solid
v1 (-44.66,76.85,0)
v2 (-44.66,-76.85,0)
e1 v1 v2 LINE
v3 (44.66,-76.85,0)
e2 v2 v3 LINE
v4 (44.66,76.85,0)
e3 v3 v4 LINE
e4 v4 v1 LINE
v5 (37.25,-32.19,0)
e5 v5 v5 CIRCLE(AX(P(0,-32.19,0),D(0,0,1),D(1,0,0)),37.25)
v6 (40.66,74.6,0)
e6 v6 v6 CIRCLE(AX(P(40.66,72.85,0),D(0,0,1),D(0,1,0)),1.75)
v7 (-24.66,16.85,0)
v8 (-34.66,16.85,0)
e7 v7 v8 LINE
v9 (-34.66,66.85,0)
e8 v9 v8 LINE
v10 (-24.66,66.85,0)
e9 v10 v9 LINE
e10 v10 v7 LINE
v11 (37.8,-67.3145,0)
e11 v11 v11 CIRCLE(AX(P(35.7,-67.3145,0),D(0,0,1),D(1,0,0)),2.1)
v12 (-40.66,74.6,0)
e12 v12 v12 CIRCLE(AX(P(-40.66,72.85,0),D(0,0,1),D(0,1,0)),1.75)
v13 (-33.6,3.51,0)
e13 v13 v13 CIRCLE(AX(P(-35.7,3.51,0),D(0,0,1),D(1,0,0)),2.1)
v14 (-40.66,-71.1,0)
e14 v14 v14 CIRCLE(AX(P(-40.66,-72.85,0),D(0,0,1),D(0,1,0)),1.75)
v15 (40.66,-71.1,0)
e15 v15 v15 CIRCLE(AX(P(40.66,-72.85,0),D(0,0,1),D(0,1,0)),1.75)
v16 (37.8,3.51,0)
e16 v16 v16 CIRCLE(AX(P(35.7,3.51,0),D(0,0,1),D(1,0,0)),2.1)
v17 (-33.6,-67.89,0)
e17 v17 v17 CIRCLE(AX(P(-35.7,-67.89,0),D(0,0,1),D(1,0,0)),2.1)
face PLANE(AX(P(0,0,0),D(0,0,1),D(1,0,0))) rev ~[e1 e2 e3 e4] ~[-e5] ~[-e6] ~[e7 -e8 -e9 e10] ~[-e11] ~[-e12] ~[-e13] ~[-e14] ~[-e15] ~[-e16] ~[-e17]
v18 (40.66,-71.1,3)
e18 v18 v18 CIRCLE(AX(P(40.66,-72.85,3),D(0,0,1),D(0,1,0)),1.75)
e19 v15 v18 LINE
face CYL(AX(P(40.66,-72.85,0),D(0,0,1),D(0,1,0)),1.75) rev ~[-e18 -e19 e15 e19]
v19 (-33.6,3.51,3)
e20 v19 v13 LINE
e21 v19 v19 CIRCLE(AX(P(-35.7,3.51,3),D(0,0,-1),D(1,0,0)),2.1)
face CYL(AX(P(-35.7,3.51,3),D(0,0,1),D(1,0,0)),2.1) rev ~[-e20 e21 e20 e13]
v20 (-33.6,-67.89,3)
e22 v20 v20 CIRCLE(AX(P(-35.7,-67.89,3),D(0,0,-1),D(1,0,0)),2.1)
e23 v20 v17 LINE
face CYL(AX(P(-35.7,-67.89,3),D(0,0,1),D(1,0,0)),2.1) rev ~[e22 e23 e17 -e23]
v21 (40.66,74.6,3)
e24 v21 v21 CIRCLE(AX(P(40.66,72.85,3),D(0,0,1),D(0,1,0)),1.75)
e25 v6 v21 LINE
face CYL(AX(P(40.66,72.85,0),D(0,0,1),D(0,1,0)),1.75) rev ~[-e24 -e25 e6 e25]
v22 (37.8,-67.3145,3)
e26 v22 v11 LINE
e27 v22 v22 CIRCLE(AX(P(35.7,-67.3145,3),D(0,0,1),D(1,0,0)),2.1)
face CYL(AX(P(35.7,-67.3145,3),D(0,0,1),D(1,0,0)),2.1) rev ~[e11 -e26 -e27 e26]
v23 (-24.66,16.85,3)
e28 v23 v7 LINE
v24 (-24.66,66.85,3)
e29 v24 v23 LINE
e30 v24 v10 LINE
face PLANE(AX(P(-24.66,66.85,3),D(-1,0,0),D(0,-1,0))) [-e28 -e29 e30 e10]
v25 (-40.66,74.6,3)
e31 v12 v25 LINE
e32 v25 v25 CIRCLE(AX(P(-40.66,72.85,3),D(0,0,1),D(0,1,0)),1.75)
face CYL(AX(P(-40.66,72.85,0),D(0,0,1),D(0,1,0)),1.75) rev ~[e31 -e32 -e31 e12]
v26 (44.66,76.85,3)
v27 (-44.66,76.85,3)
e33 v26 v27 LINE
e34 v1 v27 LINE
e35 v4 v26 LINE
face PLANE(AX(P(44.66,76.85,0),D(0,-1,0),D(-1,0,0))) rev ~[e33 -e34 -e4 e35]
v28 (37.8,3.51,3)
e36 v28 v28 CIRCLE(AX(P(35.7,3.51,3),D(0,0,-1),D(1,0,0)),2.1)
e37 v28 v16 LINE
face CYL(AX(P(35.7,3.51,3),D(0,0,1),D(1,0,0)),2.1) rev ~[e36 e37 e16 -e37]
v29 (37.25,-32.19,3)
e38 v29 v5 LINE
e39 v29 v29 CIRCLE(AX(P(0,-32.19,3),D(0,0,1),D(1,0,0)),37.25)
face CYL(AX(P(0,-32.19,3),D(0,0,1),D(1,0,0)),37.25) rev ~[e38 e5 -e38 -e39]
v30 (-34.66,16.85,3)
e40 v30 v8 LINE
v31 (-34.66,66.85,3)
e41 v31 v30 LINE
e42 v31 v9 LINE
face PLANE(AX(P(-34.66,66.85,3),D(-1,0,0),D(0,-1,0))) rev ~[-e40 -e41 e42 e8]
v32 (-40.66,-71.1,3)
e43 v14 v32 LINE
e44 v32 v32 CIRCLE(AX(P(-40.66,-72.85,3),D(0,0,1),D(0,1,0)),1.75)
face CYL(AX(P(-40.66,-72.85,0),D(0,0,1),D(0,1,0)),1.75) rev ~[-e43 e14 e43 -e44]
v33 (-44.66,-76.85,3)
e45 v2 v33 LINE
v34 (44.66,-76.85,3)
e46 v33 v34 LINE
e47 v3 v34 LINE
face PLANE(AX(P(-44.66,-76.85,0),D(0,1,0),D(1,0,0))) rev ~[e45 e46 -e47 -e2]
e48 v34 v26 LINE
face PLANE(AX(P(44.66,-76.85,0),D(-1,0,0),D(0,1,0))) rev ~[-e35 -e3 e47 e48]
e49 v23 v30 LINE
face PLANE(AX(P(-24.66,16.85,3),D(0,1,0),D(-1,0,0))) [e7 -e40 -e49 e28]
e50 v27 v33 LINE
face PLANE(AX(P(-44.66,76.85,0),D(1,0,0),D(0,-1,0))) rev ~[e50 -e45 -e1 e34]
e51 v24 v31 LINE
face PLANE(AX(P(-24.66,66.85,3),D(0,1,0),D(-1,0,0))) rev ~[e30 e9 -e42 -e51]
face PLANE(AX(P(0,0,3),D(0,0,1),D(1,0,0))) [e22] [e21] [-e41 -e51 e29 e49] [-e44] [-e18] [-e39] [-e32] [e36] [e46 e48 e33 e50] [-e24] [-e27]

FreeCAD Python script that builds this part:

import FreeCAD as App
import Part
import Sketcher
from FreeCAD import Vector

doc = App.newDocument("Part")
params = doc.addObject("Spreadsheet::Sheet", "Params")
for row, (alias, value) in enumerate([
    ("sketch1_height", "153.7 mm"),
    ("sketch1_width", "89.32 mm"),
    ("pad1_length", "3 mm"),
    ("sketch2_diameter", "4.2 mm"),
    ("sketch2_diameter2", "74.5 mm"),
    ("pocket1_length", "3 mm"),
    ("sketch3_width", "10 mm"),
    ("sketch3_height", "50 mm"),
    ("pocket2_length", "10 mm"),
    ("sketch4_diameter", "3.5 mm"),
    ("hole_diameter", "3.5 mm"),
    ("hole_depth", "7 mm"),
], start=1):
    params.set(f"A{row}", alias)
    params.set(f"B{row}", "=" + value)
    params.setAlias(f"B{row}", alias)

body = doc.addObject("PartDesign::Body", "Body")

# Sketch on XY plane
sketch1 = doc.addObject("Sketcher::SketchObject", "Sketch")
body.addObject(sketch1)
sketch1.AttachmentSupport = (doc.XY_Plane, [""])
sketch1.MapMode = "FlatFace"
sketch1.addGeometry([
    Part.LineSegment(Vector(44.66, 76.85, 0), Vector(-44.66, 76.85, 0)),
    Part.LineSegment(Vector(-44.66, 76.85, 0), Vector(-44.66, -76.85, 0)),
    Part.LineSegment(Vector(-44.66, -76.85, 0), Vector(44.66, -76.85, 0)),
    Part.LineSegment(Vector(44.66, -76.85, 0), Vector(44.66, 76.85, 0)),
], False)
sketch1.addConstraint([
    Sketcher.Constraint("Coincident", 0, 2, 1, 1),
    Sketcher.Constraint("Coincident", 1, 2, 2, 1),
    Sketcher.Constraint("Coincident", 2, 2, 3, 1),
    Sketcher.Constraint("Coincident", 3, 2, 0, 1),
    Sketcher.Constraint("Horizontal", 0),
    Sketcher.Constraint("Vertical", 1),
    Sketcher.Constraint("Horizontal", 2),
    Sketcher.Constraint("Vertical", 3),
    Sketcher.Constraint("Symmetric", 0, 2, 2, 2, -1, 1),
    Sketcher.Constraint("DistanceY", 1, 2, 1, 1, 153.7),
    Sketcher.Constraint("DistanceX", 0, 2, 0, 1, 89.32),
])
sketch1.setExpression("Constraints[9]", "Params.sketch1_height")
sketch1.setExpression("Constraints[10]", "Params.sketch1_width")
pad1 = doc.addObject("PartDesign::Pad", "Pad")
body.addObject(pad1)
pad1.Profile = sketch1
pad1.setExpression("Length", "Params.pad1_length")

# Sketch on XY plane
sketch2 = doc.addObject("Sketcher::SketchObject", "Sketch001")
body.addObject(sketch2)
sketch2.AttachmentSupport = (doc.XY_Plane, [""])
sketch2.MapMode = "FlatFace"
sketch2.AttachmentOffset = App.Placement(Vector(0, 0, 3), App.Rotation())
sketch2.addGeometry([
    Part.Circle(Vector(35.7, -67.3145, 0), Vector(0, 0, 1), 2.1),  # 0
    Part.Circle(Vector(-35.7, -67.89, 0), Vector(0, 0, 1), 2.1),  # 1
    Part.Circle(Vector(-35.7, 3.51, 0), Vector(0, 0, 1), 2.1),  # 2
    Part.Circle(Vector(35.7, 3.51, 0), Vector(0, 0, 1), 2.1),  # 3
    Part.Circle(Vector(0, -32.19, 0), Vector(0, 0, 1), 37.25),  # 4
], False)
sketch2.addConstraint([
    Sketcher.Constraint("Equal", 0, 1),
    Sketcher.Constraint("Equal", 1, 2),
    Sketcher.Constraint("Equal", 2, 3),
    Sketcher.Constraint("Symmetric", 2, 3, 3, 3, -2),
    Sketcher.Constraint("PointOnObject", 4, 3, -2),
    Sketcher.Constraint("Vertical", 1, 3, 2, 3),
    Sketcher.Constraint("Vertical", 0, 3, 3, 3),
    Sketcher.Constraint("Diameter", 0, 4.2),
    Sketcher.Constraint("Diameter", 4, 74.5),
    Sketcher.Constraint("DistanceX", -1, 1, 0, 3, 35.7),
    Sketcher.Constraint("DistanceY", 1, 3, 2, 3, 71.4),
    Sketcher.Constraint("DistanceY", 4, 3, 2, 3, 35.7),
    Sketcher.Constraint("DistanceY", 1, 3, -1, 1, 67.89),
    Sketcher.Constraint("DistanceY", 0, 3, -1, 1, 67.3145),
])
sketch2.setExpression("Constraints[7]", "Params.sketch2_diameter")
sketch2.setExpression("Constraints[8]", "Params.sketch2_diameter2")
pocket1 = doc.addObject("PartDesign::Pocket", "Pocket")
body.addObject(pocket1)
pocket1.Profile = sketch2
pocket1.setExpression("Length", "Params.pocket1_length")

# Sketch on XY plane
sketch3 = doc.addObject("Sketcher::SketchObject", "Sketch002")
body.addObject(sketch3)
sketch3.AttachmentSupport = (doc.XY_Plane, [""])
sketch3.MapMode = "FlatFace"
sketch3.AttachmentOffset = App.Placement(Vector(0, 0, 3), App.Rotation())
sketch3.addGeometry([
    Part.LineSegment(Vector(-24.66, 16.85, 0), Vector(-24.66, 66.85, 0)),
    Part.LineSegment(Vector(-24.66, 66.85, 0), Vector(-34.66, 66.85, 0)),
    Part.LineSegment(Vector(-34.66, 66.85, 0), Vector(-34.66, 16.85, 0)),
    Part.LineSegment(Vector(-34.66, 16.85, 0), Vector(-24.66, 16.85, 0)),
], False)
sketch3.addConstraint([
    Sketcher.Constraint("Coincident", 0, 2, 1, 1),
    Sketcher.Constraint("Coincident", 1, 2, 2, 1),
    Sketcher.Constraint("Coincident", 2, 2, 3, 1),
    Sketcher.Constraint("Coincident", 3, 2, 0, 1),
    Sketcher.Constraint("Vertical", 0),
    Sketcher.Constraint("Horizontal", 1),
    Sketcher.Constraint("Vertical", 2),
    Sketcher.Constraint("Horizontal", 3),
    Sketcher.Constraint("DistanceX", 1, 2, 1, 1, 10.0),
    Sketcher.Constraint("DistanceY", 0, 1, 0, 2, 50.0),
    Sketcher.Constraint("DistanceX", 0, 2, -1, 1, 24.66),
    Sketcher.Constraint("DistanceY", -1, 1, 0, 2, 66.85),
])
sketch3.setExpression("Constraints[8]", "Params.sketch3_width")
sketch3.setExpression("Constraints[9]", "Params.sketch3_height")
pocket2 = doc.addObject("PartDesign::Pocket", "Pocket001")
body.addObject(pocket2)
pocket2.Profile = sketch3
pocket2.setExpression("Length", "Params.pocket2_length")

# Sketch on XY plane
sketch4 = doc.addObject("Sketcher::SketchObject", "Sketch003")
body.addObject(sketch4)
sketch4.AttachmentSupport = (doc.XY_Plane, [""])
sketch4.MapMode = "FlatFace"
sketch4.addGeometry([
    Part.Circle(Vector(40.66, 72.85, 0), Vector(0, 0, 1), 1.75),
    Part.Circle(Vector(-40.66, 72.85, 0), Vector(0, 0, 1), 1.75),
    Part.Circle(Vector(-40.66, -72.85, 0), Vector(0, 0, 1), 1.75),
    Part.Circle(Vector(40.66, -72.85, 0), Vector(0, 0, 1), 1.75),
], False)
sketch4.addConstraint([
    Sketcher.Constraint("Equal", 0, 1),
    Sketcher.Constraint("Equal", 1, 2),
    Sketcher.Constraint("Equal", 2, 3),
    Sketcher.Constraint("Symmetric", 0, 3, 2, 3, -1, 1),
    Sketcher.Constraint("Symmetric", 1, 3, 3, 3, -1, 1),
    Sketcher.Constraint("Symmetric", 0, 3, 1, 3, -2),
    Sketcher.Constraint("Diameter", 0, 3.5),
    Sketcher.Constraint("DistanceY", 2, 3, 1, 3, 145.7),
    Sketcher.Constraint("DistanceX", -1, 1, 0, 3, 40.66),
])
sketch4.setExpression("Constraints[6]", "Params.sketch4_diameter")
doc.recompute()
hole = doc.addObject("PartDesign::Hole", "Hole")
body.addObject(hole)
hole.Profile = sketch4
hole.ThreadType = "None"
hole.setExpression("Diameter", "Params.hole_diameter")
hole.DepthType = "Dimension"
hole.setExpression("Depth", "Params.hole_depth")
hole.DrillPoint = "Flat"
hole.Reversed = True

doc.recompute()
